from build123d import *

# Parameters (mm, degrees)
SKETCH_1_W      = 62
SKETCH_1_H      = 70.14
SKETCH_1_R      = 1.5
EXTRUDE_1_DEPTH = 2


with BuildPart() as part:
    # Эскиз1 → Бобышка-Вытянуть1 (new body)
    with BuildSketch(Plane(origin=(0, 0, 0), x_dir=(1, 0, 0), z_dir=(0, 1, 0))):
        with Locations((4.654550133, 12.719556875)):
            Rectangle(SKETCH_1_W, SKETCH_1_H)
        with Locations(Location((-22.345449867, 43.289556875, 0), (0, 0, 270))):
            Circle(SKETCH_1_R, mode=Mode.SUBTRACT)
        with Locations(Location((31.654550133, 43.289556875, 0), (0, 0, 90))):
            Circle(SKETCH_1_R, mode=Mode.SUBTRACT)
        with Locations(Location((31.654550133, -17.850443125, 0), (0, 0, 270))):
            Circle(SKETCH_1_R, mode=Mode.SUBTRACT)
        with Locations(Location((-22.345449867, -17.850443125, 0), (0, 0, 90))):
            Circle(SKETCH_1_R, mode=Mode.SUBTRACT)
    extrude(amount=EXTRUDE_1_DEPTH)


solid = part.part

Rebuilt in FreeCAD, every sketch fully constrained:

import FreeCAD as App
import Part
import Sketcher
from FreeCAD import Vector

doc = App.newDocument("Part")
body = doc.addObject("PartDesign::Body", "Body")

# Sketch on XZ plane
sketch1 = doc.addObject("Sketcher::SketchObject", "Sketch")
body.addObject(sketch1)
sketch1.AttachmentSupport = (doc.XZ_Plane, [""])
sketch1.MapMode = "FlatFace"
sketch1.addGeometry([
    Part.LineSegment(Vector(-26.3, -47.8, 0), Vector(-26.3, 22.4, 0)),  # 0
    Part.LineSegment(Vector(-26.3, 22.4, 0), Vector(35.7, 22.4, 0)),  # 1
    Part.LineSegment(Vector(35.7, 22.4, 0), Vector(35.7, -47.8, 0)),  # 2
    Part.LineSegment(Vector(35.7, -47.8, 0), Vector(-26.3, -47.8, 0)),  # 3
    Part.Circle(Vector(-22.3, 17.9, 0), Vector(0, 0, 1), 1.5),  # 4
    Part.Circle(Vector(31.7, 17.9, 0), Vector(0, 0, 1), 1.5),  # 5
    Part.Circle(Vector(-22.3, -43.3, 0), Vector(0, 0, 1), 1.5),  # 6
    Part.Circle(Vector(31.7, -43.3, 0), Vector(0, 0, 1), 1.5),  # 7
], False)
sketch1.addConstraint([
    Sketcher.Constraint("Coincident", 0, 2, 1, 1),
    Sketcher.Constraint("Coincident", 1, 2, 2, 1),
    Sketcher.Constraint("Coincident", 2, 2, 3, 1),
    Sketcher.Constraint("Coincident", 3, 2, 0, 1),
    Sketcher.Constraint("Vertical", 0),
    Sketcher.Constraint("Horizontal", 1),
    Sketcher.Constraint("Vertical", 2),
    Sketcher.Constraint("Horizontal", 3),
    Sketcher.Constraint("Equal", 4, 5),
    Sketcher.Constraint("Equal", 5, 6),
    Sketcher.Constraint("Equal", 6, 7),
    Sketcher.Constraint("Horizontal", 4, 3, 5, 3),
    Sketcher.Constraint("Horizontal", 6, 3, 7, 3),
    Sketcher.Constraint("Vertical", 4, 3, 6, 3),
    Sketcher.Constraint("Vertical", 5, 3, 7, 3),
    Sketcher.Constraint("Diameter", 4, 3.0),
    Sketcher.Constraint("DistanceX", 1, 1, 1, 2, 62.0),
    Sketcher.Constraint("DistanceX", 4, 3, 5, 3, 54.0),
    Sketcher.Constraint("DistanceX", 0, 2, 4, 3, 4.0),
    Sketcher.Constraint("DistanceY", 0, 1, 0, 2, 70.14),
    Sketcher.Constraint("DistanceY", 4, 3, 0, 2, 4.5),
    Sketcher.Constraint("DistanceY", 2, 2, 7, 3, 4.5),
    Sketcher.Constraint("DistanceX", 4, 3, -1, 1, 22.34545),
    Sketcher.Constraint("DistanceY", -1, 1, 4, 3, 17.850443),
])
pad1 = doc.addObject("PartDesign::Pad", "Pad")
body.addObject(pad1)
pad1.Profile = sketch1
pad1.Length = 2
pad1.Reversed = True

doc.recompute()
